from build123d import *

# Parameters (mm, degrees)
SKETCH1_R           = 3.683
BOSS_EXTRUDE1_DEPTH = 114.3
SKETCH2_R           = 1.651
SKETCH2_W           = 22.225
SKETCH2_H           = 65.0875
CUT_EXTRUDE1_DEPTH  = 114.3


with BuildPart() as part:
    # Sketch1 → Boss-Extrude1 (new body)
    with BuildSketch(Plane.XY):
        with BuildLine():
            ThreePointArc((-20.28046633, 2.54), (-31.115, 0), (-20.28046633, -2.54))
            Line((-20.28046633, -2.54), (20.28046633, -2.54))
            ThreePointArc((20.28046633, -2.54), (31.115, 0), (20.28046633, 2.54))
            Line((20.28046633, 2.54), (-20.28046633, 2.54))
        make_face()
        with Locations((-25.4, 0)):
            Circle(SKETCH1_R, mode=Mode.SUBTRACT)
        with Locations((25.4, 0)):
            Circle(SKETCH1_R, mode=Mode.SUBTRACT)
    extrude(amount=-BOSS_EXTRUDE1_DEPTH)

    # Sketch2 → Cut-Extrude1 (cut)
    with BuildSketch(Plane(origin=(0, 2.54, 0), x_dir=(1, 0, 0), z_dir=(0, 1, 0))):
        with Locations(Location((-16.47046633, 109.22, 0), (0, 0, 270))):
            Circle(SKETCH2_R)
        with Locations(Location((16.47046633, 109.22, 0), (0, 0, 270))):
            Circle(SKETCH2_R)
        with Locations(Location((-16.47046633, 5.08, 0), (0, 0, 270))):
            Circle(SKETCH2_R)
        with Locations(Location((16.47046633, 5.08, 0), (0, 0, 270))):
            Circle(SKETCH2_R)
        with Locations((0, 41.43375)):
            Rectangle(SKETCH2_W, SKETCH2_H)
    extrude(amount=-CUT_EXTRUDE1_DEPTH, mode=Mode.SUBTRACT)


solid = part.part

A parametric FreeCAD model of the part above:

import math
import FreeCAD as App
import Part
import Sketcher
Q = App.Units.Quantity


def add_polygon(sketch, points):
    """Adds a closed chain of lines whose ends are joined by coincident constraints."""
    first, n = sketch.GeometryCount, len(points)
    for a, b in zip(points, points[1:] + points[:1]):
        sketch.addGeometry(Part.LineSegment(App.Vector(*a, 0), App.Vector(*b, 0)), False)
    for i in range(n):
        sketch.addConstraint(Sketcher.Constraint("Coincident", first + i, 2, first + (i + 1) % n, 1))

doc = App.newDocument("Part")
params = doc.addObject("Spreadsheet::Sheet", "Params")
for row, (alias, value) in enumerate([
    ("sketch1_diameter", "0.29 in"),
    ("sketch1_radius", "0.225 in"),
    ("pad1_length", "4.5 in"),
    ("sketch2_diameter", "0.13 in"),
    ("sketch2_width", "0.875 in"),
    ("sketch2_height", "2.5625 in"),
    ("pocket1_length", "4.5 in"),
], start=1):
    params.set(f"A{row}", alias)
    params.set(f"B{row}", "=" + value)
    params.setAlias(f"B{row}", alias)

body = doc.addObject("PartDesign::Body", "Body")

sketch1 = body.newObject("Sketcher::SketchObject", "Sketch")
sketch1.AttachmentSupport = (doc.getObject("XY_Plane"), [""])
sketch1.MapMode = "FlatFace"
sketch1.addGeometry(Part.ArcOfCircle(Part.Circle(App.Vector(-25.4, 0, 0), App.Vector(0, 0, 1), 5.7), math.radians(26), math.radians(334)), False)
sketch1.addGeometry(Part.LineSegment(App.Vector(-20.3, -2.5, 0), App.Vector(20.3, -2.5, 0)), False)
sketch1.addGeometry(Part.ArcOfCircle(Part.Circle(App.Vector(25.4, 0, 0), App.Vector(0, 0, 1), 5.7), math.radians(-154), math.radians(154)), False)
sketch1.addGeometry(Part.LineSegment(App.Vector(20.3, 2.5, 0), App.Vector(-20.3, 2.5, 0)), False)
sketch1.addGeometry(Part.Circle(App.Vector(-25.4, 0, 0), App.Vector(0, 0, 1), 3.7), False)
sketch1.addGeometry(Part.Circle(App.Vector(25.4, 0, 0), App.Vector(0, 0, 1), 3.7), False)
sketch1.addConstraint(Sketcher.Constraint("Coincident", 0, 2, 1, 1))
sketch1.addConstraint(Sketcher.Constraint("Coincident", 1, 2, 2, 1))
sketch1.addConstraint(Sketcher.Constraint("Coincident", 2, 2, 3, 1))
sketch1.addConstraint(Sketcher.Constraint("Coincident", 3, 2, 0, 1))
sketch1.addConstraint(Sketcher.Constraint("Horizontal", 1))
sketch1.addConstraint(Sketcher.Constraint("Horizontal", 3))
sketch1.addConstraint(Sketcher.Constraint("Coincident", 4, 3, 0, 3))
sketch1.addConstraint(Sketcher.Constraint("Coincident", 5, 3, 2, 3))
sketch1.addConstraint(Sketcher.Constraint("Equal", 0, 2))
sketch1.addConstraint(Sketcher.Constraint("Equal", 4, 5))
sketch1.addConstraint(Sketcher.Constraint("Symmetric", 0, 3, 2, 3, -1, 1))
sketch1.addConstraint(Sketcher.Constraint("Symmetric", 1, 2, 2, 2, -1))
sketch1.addConstraint(Sketcher.Constraint("Diameter", 4, Q("0.29 in")))
sketch1.addConstraint(Sketcher.Constraint("DistanceX", 0, 3, -1, 1, Q("1 in")))
sketch1.addConstraint(Sketcher.Constraint("Radius", 0, Q("0.225 in")))
sketch1.addConstraint(Sketcher.Constraint("DistanceY", 0, 2, -1, 1, Q("0.1 in")))
sketch1.setExpression("Constraints[12]", "Params.sketch1_diameter")
sketch1.setExpression("Constraints[14]", "Params.sketch1_radius")
pad1 = body.newObject("PartDesign::Pad", "Pad")
pad1.Profile = sketch1
pad1.setExpression("Length", "Params.pad1_length")
pad1.Reversed = True

sketch2 = body.newObject("Sketcher::SketchObject", "Sketch001")
sketch2.AttachmentSupport = (doc.getObject("XZ_Plane"), [""])
sketch2.MapMode = "FlatFace"
sketch2.AttachmentOffset = App.Placement(App.Vector(0, 0, -0.1 * 25.4), App.Rotation())
sketch2.addGeometry(Part.Circle(App.Vector(-16.5, -109.2, 0), App.Vector(0, 0, 1), 1.7), False)
sketch2.addGeometry(Part.Circle(App.Vector(16.5, -109.2, 0), App.Vector(0, 0, 1), 1.7), False)
sketch2.addGeometry(Part.Circle(App.Vector(-16.5, -5.1, 0), App.Vector(0, 0, 1), 1.7), False)
sketch2.addGeometry(Part.Circle(App.Vector(16.5, -5.1, 0), App.Vector(0, 0, 1), 1.7), False)
add_polygon(sketch2, [(-11.1, -74), (-11.1, -8.9), (11.1, -8.9), (11.1, -74)])
sketch2.addConstraint(Sketcher.Constraint("Vertical", 4))
sketch2.addConstraint(Sketcher.Constraint("Horizontal", 5))
sketch2.addConstraint(Sketcher.Constraint("Vertical", 6))
sketch2.addConstraint(Sketcher.Constraint("Horizontal", 7))
sketch2.addConstraint(Sketcher.Constraint("Equal", 0, 1))
sketch2.addConstraint(Sketcher.Constraint("Equal", 1, 2))
sketch2.addConstraint(Sketcher.Constraint("Equal", 2, 3))
sketch2.addConstraint(Sketcher.Constraint("Symmetric", 0, 3, 1, 3, -2))
sketch2.addConstraint(Sketcher.Constraint("Symmetric", 2, 3, 3, 3, -2))
sketch2.addConstraint(Sketcher.Constraint("Vertical", 0, 3, 2, 3))
sketch2.addConstraint(Sketcher.Constraint("Diameter", 0, Q("0.13 in")))
sketch2.addConstraint(Sketcher.Constraint("DistanceY", 0, 3, -1, 1, Q("4.3 in")))
sketch2.addConstraint(Sketcher.Constraint("DistanceY", 2, 3, -1, 1, Q("0.2 in")))
sketch2.addConstraint(Sketcher.Constraint("DistanceX", 5, 1, 5, 2, Q("0.875 in")))
sketch2.addConstraint(Sketcher.Constraint("DistanceY", 4, 1, 4, 2, Q("2.5625 in")))
sketch2.addConstraint(Sketcher.Constraint("DistanceY", 4, 2, -1, 1, Q("0.35 in")))
sketch2.addConstraint(Sketcher.Constraint("DistanceX", 4, 2, -1, 1, Q("0.4375 in")))
sketch2.addConstraint(Sketcher.Constraint("DistanceX", 0, 3, -1, 1, 16.470466))
sketch2.setExpression("Constraints[14]", "Params.sketch2_diameter")
sketch2.setExpression("Constraints[17]", "Params.sketch2_width")
sketch2.setExpression("Constraints[18]", "Params.sketch2_height")
pocket1 = body.newObject("PartDesign::Pocket", "Pocket")
pocket1.Profile = sketch2
pocket1.setExpression("Length", "Params.pocket1_length")
pocket1.Reversed = True

doc.recompute()
